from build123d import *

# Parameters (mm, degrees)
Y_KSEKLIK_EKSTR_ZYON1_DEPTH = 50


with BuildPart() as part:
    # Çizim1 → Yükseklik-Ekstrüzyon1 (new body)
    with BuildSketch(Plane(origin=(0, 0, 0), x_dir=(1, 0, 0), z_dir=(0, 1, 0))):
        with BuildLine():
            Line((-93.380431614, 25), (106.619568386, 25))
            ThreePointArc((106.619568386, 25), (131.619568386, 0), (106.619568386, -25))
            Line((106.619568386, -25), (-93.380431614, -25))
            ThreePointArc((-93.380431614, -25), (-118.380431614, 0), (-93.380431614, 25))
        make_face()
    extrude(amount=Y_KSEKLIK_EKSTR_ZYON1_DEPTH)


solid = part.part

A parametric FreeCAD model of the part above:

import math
import FreeCAD as App
import Part
import Sketcher

V = App.Vector

doc = App.newDocument("Part")
body = doc.addObject("PartDesign::Body", "Body")

sketch1 = body.newObject("Sketcher::SketchObject", "Sketch")
sketch1.AttachmentSupport = (doc.getObject("XZ_Plane"), [""])
sketch1.MapMode = "FlatFace"
sketch1.addGeometry([
    Part.LineSegment(V(107, -25, 0), V(-93, -25, 0)),
    Part.ArcOfCircle(Part.Circle(V(-93, 0, 0), V(0, 0, 1), 25), math.radians(90), math.radians(270)),
    Part.LineSegment(V(-93, 25, 0), V(107, 25, 0)),
    Part.ArcOfCircle(Part.Circle(V(107, 0, 0), V(0, 0, 1), 25), math.radians(-90), math.radians(90)),
], False)
sketch1.addConstraint([
    Sketcher.Constraint("Tangent", 0, 2, 1, 2),
    Sketcher.Constraint("Tangent", 1, 1, 2, 1),
    Sketcher.Constraint("Tangent", 2, 2, 3, 2),
    Sketcher.Constraint("Tangent", 3, 1, 0, 1),
    Sketcher.Constraint("Horizontal", 0),
    Sketcher.Constraint("Horizontal", 2),
    Sketcher.Constraint("PointOnObject", 1, 3, -1),
    Sketcher.Constraint("Radius", 1, 25.0),
    Sketcher.Constraint("DistanceX", 0, 2, 0, 1, 200.0),
    Sketcher.Constraint("DistanceX", 1, 3, -1, 1, 93.380432),
])
pad1 = body.newObject("PartDesign::Pad", "Pad")
pad1.Profile = sketch1
pad1.Length = 50
pad1.Reversed = True

doc.recompute()
